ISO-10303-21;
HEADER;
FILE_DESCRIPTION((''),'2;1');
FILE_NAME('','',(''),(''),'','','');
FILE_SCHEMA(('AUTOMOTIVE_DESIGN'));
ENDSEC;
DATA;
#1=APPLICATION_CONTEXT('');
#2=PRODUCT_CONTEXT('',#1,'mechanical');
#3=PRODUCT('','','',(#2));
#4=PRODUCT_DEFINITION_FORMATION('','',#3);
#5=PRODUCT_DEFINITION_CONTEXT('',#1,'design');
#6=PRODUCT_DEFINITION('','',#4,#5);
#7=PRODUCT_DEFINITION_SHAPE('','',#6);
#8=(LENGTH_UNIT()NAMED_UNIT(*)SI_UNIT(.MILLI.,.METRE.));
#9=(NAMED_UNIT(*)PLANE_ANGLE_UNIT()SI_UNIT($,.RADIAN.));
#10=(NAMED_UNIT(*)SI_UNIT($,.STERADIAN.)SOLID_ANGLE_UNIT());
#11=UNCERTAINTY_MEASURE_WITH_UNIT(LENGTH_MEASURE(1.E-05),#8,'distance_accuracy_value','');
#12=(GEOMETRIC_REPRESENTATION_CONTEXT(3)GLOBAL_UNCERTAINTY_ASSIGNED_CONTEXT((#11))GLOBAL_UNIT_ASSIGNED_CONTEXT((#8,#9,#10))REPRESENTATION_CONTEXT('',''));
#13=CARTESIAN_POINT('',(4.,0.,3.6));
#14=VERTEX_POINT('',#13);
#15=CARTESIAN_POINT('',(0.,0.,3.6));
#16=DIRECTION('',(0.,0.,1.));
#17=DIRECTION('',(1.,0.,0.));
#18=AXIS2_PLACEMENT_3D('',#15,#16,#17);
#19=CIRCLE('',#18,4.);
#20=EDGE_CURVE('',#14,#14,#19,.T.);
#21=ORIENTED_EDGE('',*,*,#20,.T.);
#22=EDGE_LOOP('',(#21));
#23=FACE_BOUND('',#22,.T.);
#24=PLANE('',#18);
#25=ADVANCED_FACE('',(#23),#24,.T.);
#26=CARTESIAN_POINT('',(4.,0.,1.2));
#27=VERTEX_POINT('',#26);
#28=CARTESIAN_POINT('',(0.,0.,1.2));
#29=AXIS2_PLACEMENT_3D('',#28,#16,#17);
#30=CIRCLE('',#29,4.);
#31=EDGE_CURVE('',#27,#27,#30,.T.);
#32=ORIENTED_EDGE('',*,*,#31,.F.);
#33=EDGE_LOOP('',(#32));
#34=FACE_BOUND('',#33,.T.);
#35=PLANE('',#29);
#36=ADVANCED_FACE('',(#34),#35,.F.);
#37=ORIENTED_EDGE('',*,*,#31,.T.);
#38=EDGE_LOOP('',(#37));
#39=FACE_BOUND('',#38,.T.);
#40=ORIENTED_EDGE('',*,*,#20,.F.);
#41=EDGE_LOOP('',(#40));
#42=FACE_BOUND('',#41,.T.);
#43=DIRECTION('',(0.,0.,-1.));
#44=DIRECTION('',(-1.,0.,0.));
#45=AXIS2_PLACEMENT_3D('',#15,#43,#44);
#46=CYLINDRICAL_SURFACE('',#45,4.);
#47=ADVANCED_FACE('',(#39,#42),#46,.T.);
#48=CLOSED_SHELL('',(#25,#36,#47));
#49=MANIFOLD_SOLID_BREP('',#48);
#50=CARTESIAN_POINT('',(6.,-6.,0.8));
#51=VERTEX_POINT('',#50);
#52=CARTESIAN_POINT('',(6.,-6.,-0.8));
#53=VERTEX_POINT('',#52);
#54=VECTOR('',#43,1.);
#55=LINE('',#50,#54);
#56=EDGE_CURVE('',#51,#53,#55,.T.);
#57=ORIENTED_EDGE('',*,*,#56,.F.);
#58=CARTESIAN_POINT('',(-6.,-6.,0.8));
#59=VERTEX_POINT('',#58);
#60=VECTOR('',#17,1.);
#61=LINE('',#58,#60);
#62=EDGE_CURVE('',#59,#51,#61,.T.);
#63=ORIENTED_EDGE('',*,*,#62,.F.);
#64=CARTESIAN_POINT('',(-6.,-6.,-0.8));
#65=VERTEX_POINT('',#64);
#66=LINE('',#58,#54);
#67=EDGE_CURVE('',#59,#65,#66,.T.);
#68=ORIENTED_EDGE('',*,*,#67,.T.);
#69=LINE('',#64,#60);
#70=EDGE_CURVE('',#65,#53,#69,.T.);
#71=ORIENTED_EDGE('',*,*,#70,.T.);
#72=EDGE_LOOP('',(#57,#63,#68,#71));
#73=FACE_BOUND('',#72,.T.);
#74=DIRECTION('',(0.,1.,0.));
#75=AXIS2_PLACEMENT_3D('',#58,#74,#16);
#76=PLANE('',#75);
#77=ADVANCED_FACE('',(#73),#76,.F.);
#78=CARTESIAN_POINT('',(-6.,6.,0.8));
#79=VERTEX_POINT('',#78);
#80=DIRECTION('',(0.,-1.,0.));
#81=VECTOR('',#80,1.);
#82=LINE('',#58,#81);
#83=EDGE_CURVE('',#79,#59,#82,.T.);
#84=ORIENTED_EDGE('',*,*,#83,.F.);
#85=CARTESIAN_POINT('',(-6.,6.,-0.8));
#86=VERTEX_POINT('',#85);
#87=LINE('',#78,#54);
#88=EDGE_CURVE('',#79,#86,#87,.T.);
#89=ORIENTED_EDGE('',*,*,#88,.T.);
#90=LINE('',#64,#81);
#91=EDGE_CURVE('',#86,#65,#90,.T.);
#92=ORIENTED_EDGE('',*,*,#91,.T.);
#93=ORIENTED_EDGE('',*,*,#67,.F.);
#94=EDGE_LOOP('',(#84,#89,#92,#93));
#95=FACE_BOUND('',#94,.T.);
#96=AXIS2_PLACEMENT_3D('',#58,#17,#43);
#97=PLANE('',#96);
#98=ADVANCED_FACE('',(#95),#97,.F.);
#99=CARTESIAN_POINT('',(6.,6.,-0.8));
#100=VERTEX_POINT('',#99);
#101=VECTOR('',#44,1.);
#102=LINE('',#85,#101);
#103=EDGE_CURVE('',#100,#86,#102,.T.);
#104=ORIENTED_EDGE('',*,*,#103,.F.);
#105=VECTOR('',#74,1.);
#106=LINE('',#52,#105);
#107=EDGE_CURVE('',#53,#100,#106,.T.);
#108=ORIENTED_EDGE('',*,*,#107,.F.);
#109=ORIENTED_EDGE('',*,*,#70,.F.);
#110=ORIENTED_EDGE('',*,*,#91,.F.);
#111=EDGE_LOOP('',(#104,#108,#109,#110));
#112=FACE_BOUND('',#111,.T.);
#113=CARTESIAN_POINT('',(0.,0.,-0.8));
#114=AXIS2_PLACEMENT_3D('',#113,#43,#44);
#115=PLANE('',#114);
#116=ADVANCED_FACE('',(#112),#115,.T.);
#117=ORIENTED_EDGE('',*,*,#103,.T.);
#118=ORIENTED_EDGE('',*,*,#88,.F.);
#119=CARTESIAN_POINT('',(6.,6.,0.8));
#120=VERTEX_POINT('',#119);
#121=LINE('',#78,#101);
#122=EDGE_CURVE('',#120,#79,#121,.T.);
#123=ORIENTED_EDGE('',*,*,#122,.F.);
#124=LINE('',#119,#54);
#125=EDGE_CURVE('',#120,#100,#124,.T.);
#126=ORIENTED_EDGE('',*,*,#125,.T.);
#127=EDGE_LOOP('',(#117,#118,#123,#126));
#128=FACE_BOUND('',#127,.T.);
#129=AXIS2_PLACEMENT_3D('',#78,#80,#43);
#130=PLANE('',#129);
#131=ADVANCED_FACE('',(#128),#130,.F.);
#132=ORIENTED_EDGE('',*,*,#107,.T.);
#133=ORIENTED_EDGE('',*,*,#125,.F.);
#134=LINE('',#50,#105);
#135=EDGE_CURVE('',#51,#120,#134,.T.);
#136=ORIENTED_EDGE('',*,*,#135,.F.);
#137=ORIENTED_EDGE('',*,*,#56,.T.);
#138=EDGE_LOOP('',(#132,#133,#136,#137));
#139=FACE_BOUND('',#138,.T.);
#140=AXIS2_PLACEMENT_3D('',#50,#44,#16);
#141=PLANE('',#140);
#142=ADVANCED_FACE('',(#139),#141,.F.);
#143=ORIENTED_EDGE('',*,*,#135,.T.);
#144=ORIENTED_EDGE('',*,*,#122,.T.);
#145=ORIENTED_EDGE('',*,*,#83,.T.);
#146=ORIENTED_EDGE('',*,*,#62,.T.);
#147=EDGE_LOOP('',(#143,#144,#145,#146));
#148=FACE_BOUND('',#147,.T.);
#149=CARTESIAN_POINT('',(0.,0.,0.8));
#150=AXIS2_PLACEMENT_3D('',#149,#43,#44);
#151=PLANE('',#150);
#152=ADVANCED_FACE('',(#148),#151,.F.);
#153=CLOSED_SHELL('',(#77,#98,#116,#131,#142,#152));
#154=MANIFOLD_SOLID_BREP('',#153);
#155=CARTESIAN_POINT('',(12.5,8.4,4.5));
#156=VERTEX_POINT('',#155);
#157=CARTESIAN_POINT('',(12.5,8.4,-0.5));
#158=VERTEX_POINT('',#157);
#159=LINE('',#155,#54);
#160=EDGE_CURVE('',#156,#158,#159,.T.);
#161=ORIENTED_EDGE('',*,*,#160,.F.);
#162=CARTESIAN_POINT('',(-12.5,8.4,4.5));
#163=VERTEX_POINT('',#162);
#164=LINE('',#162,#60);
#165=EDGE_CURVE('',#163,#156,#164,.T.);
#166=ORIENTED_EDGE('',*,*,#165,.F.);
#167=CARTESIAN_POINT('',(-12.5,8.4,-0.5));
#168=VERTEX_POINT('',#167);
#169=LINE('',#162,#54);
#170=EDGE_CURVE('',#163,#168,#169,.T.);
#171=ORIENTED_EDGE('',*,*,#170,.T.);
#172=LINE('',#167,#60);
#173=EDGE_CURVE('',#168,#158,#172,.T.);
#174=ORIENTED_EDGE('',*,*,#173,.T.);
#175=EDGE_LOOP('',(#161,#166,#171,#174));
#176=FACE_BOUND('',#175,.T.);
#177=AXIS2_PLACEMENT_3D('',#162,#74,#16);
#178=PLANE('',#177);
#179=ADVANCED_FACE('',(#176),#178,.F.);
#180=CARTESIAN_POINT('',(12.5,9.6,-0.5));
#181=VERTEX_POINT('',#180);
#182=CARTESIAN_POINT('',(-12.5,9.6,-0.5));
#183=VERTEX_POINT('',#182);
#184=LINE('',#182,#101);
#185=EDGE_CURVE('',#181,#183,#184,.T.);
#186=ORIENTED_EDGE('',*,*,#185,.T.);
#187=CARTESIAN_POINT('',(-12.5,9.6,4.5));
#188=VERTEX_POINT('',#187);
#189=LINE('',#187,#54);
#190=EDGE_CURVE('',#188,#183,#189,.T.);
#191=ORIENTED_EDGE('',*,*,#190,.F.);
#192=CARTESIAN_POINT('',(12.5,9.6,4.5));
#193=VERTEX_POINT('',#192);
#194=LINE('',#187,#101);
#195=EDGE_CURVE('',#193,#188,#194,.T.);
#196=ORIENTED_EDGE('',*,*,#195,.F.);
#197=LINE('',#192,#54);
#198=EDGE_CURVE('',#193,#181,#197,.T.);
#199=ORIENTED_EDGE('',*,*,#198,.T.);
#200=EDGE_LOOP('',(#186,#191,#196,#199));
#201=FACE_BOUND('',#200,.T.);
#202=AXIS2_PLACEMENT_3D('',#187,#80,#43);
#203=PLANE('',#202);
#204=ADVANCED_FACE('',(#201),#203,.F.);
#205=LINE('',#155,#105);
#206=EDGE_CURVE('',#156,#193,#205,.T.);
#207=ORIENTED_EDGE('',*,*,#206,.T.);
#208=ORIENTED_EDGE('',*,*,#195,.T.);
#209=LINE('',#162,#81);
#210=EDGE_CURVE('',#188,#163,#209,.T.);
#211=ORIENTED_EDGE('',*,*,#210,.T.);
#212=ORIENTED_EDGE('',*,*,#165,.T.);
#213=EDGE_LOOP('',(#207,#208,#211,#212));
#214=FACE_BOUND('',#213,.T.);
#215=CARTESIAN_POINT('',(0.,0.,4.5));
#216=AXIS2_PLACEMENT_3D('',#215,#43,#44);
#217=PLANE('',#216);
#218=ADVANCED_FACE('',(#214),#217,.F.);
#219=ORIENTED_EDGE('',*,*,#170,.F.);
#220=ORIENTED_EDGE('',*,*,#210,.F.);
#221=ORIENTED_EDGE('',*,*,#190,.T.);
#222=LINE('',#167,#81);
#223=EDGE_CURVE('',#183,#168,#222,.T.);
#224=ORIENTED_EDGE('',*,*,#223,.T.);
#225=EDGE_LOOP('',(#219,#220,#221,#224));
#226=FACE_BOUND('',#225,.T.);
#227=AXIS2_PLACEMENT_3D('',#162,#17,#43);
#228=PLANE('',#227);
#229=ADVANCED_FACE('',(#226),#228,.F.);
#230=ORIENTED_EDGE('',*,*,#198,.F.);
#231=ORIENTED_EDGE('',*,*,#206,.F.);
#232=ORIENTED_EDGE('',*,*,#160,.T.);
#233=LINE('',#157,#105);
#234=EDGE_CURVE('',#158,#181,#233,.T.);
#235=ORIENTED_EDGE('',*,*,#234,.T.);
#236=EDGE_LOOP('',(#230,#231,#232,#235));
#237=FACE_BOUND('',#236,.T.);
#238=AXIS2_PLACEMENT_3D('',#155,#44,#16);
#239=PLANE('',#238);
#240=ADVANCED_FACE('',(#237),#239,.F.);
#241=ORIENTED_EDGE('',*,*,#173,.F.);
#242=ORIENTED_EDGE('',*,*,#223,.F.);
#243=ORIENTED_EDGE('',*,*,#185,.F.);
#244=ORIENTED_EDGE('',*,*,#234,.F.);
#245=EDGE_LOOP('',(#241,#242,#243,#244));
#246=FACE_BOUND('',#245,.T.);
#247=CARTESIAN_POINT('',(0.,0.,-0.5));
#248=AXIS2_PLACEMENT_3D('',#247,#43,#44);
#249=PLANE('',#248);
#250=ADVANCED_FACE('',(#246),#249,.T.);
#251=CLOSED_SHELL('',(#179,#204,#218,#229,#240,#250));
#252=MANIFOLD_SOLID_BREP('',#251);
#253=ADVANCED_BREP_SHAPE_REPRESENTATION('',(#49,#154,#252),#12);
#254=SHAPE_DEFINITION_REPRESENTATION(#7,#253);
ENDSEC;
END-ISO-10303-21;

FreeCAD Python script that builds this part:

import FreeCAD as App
import Part
import Sketcher
Q = App.Units.Quantity

doc = App.newDocument("Part")
body = doc.addObject("PartDesign::Body", "Body")

sketch1 = doc.addObject("Sketcher::SketchObject", "Sketch")
body.addObject(sketch1)
sketch1.AttachmentSupport = (doc.XY_Plane, [""])
sketch1.MapMode = "FlatFace"
sketch1.AttachmentOffset = App.Placement(App.Vector(0, 0, -0.8), App.Rotation())
sketch1.addGeometry([
    Part.LineSegment(App.Vector(-6, 6, 0), App.Vector(-6, -6, 0)),
    Part.LineSegment(App.Vector(-6, -6, 0), App.Vector(6, -6, 0)),
    Part.LineSegment(App.Vector(6, -6, 0), App.Vector(6, 6, 0)),
    Part.LineSegment(App.Vector(6, 6, 0), App.Vector(-6, 6, 0)),
], False)
sketch1.addConstraint([
    Sketcher.Constraint("Coincident", 0, 2, 1, 1),
    Sketcher.Constraint("Coincident", 1, 2, 2, 1),
    Sketcher.Constraint("Coincident", 2, 2, 3, 1),
    Sketcher.Constraint("Coincident", 3, 2, 0, 1),
    Sketcher.Constraint("Vertical", 0),
    Sketcher.Constraint("Horizontal", 1),
    Sketcher.Constraint("Vertical", 2),
    Sketcher.Constraint("Horizontal", 3),
    Sketcher.Constraint("Symmetric", 0, 2, 2, 2, -1, 1),
    Sketcher.Constraint("Equal", 3, 0),
    Sketcher.Constraint("DistanceX", 1, 1, 1, 2, Q("12 mm")),
])
pad1 = doc.addObject("PartDesign::Pad", "Pad")
body.addObject(pad1)
pad1.Profile = sketch1
pad1.Length = 1.6
body2 = doc.addObject("PartDesign::Body", "Body001")

sketch2 = doc.addObject("Sketcher::SketchObject", "Sketch001")
body2.addObject(sketch2)
sketch2.AttachmentSupport = (doc.getObject("XY_Plane001"), [""])
sketch2.MapMode = "FlatFace"
sketch2.AttachmentOffset = App.Placement(App.Vector(0, 0, 1.2), App.Rotation())
sketch2.addGeometry(Part.Circle(App.Vector(0, 0, 0), App.Vector(0, 0, 1), 4), False)
sketch2.addConstraint([
    Sketcher.Constraint("Coincident", 0, 3, -1, 1),
    Sketcher.Constraint("Diameter", 0, Q("8 mm")),
])
pad2 = doc.addObject("PartDesign::Pad", "Pad001")
body2.addObject(pad2)
pad2.Profile = sketch2
pad2.Length = 2.4
body3 = doc.addObject("PartDesign::Body", "Body002")

sketch3 = doc.addObject("Sketcher::SketchObject", "Sketch002")
body3.addObject(sketch3)
sketch3.AttachmentSupport = (doc.getObject("XY_Plane002"), [""])
sketch3.MapMode = "FlatFace"
sketch3.AttachmentOffset = App.Placement(App.Vector(0, 0, -0.5), App.Rotation())
sketch3.addGeometry([
    Part.LineSegment(App.Vector(-12.5, 9.6, 0), App.Vector(-12.5, 8.4, 0)),
    Part.LineSegment(App.Vector(-12.5, 8.4, 0), App.Vector(12.5, 8.4, 0)),
    Part.LineSegment(App.Vector(12.5, 8.4, 0), App.Vector(12.5, 9.6, 0)),
    Part.LineSegment(App.Vector(12.5, 9.6, 0), App.Vector(-12.5, 9.6, 0)),
], False)
sketch3.addConstraint([
    Sketcher.Constraint("Coincident", 0, 2, 1, 1),
    Sketcher.Constraint("Coincident", 1, 2, 2, 1),
    Sketcher.Constraint("Coincident", 2, 2, 3, 1),
    Sketcher.Constraint("Coincident", 3, 2, 0, 1),
    Sketcher.Constraint("Vertical", 0),
    Sketcher.Constraint("Horizontal", 1),
    Sketcher.Constraint("Vertical", 2),
    Sketcher.Constraint("Horizontal", 3),
    Sketcher.Constraint("DistanceX", 1, 1, 1, 2, Q("25 mm")),
    Sketcher.Constraint("DistanceY", 0, 2, 0, 1, Q("1.2 mm")),
    Sketcher.Constraint("DistanceX", 0, 2, -1, 1, Q("12.5 mm")),
    Sketcher.Constraint("DistanceY", -1, 1, 0, 2, Q("8.4 mm")),
])
pad3 = doc.addObject("PartDesign::Pad", "Pad002")
body3.addObject(pad3)
pad3.Profile = sketch3
pad3.Length = 5

doc.recompute()
